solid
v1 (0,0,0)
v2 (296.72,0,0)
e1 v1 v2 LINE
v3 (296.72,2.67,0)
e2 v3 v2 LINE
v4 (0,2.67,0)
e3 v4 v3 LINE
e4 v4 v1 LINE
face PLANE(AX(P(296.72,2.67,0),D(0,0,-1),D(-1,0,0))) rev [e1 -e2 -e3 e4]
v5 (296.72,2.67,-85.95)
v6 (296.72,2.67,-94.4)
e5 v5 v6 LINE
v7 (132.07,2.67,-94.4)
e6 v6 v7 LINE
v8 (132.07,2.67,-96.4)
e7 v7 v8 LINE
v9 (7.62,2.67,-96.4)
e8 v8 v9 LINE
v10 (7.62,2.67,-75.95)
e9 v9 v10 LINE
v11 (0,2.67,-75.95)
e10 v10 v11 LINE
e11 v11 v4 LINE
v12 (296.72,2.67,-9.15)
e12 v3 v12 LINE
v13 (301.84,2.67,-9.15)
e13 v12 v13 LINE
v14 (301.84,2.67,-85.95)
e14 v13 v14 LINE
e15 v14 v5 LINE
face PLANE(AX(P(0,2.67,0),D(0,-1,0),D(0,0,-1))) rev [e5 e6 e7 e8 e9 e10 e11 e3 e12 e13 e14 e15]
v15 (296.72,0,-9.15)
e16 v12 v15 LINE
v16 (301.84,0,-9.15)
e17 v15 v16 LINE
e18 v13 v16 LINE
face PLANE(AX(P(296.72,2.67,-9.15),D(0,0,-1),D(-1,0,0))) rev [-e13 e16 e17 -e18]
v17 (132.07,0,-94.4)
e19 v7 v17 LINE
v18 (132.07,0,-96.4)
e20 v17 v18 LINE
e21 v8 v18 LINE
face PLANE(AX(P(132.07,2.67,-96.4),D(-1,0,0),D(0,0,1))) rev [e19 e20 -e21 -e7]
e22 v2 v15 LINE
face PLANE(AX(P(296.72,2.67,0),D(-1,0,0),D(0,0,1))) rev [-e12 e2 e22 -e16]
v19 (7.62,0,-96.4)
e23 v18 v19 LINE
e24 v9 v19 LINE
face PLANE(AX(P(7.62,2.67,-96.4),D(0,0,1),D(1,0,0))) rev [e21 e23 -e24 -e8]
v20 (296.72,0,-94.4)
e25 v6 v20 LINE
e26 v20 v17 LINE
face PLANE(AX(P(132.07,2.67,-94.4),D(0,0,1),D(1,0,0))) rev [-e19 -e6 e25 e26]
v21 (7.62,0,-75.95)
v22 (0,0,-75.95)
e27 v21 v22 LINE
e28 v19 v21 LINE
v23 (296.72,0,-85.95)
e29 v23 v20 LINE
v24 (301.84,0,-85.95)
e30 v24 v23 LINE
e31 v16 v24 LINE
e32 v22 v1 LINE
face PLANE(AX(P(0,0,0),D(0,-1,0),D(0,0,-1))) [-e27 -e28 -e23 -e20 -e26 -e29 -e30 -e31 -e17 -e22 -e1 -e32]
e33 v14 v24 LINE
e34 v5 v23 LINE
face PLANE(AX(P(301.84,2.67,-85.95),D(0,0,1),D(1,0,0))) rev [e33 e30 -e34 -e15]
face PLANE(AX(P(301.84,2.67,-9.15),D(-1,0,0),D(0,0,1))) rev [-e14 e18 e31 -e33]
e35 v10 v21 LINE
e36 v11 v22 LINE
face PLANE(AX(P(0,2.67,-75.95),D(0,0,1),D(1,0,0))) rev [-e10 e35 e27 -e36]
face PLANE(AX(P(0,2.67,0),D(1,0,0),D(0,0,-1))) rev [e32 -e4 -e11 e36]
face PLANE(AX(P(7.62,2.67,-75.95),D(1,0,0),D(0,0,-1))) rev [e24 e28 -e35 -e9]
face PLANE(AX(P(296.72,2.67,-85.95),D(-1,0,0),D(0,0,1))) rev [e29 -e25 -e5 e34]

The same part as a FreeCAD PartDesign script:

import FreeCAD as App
import Part
import Sketcher
Q = App.Units.Quantity

doc = App.newDocument("Part")
body = doc.addObject("PartDesign::Body", "Body")

# Sketch on XZ plane
sketch1 = body.newObject("Sketcher::SketchObject", "Sketch")
sketch1.AttachmentSupport = (doc.getObject("XZ_Plane"), [""])
sketch1.MapMode = "FlatFace"
sketch1.addGeometry(Part.LineSegment(App.Vector(0, -76, 0), App.Vector(0, 0, 0)), False)
sketch1.addGeometry(Part.LineSegment(App.Vector(0, 0, 0), App.Vector(296.7, 0, 0)), False)
sketch1.addGeometry(Part.LineSegment(App.Vector(296.7, 0, 0), App.Vector(296.7, -9.2, 0)), False)
sketch1.addGeometry(Part.LineSegment(App.Vector(296.7, -9.2, 0), App.Vector(301.8, -9.2, 0)), False)
sketch1.addGeometry(Part.LineSegment(App.Vector(301.8, -9.2, 0), App.Vector(301.8, -86, 0)), False)
sketch1.addGeometry(Part.LineSegment(App.Vector(301.8, -86, 0), App.Vector(296.7, -86, 0)), False)
sketch1.addGeometry(Part.LineSegment(App.Vector(296.7, -86, 0), App.Vector(296.7, -94.4, 0)), False)
sketch1.addGeometry(Part.LineSegment(App.Vector(296.7, -94.4, 0), App.Vector(132.1, -94.4, 0)), False)
sketch1.addGeometry(Part.LineSegment(App.Vector(132.1, -94.4, 0), App.Vector(132.1, -96.4, 0)), False)
sketch1.addGeometry(Part.LineSegment(App.Vector(132.1, -96.4, 0), App.Vector(7.6, -96.4, 0)), False)
sketch1.addGeometry(Part.LineSegment(App.Vector(7.6, -96.4, 0), App.Vector(7.6, -76, 0)), False)
sketch1.addGeometry(Part.LineSegment(App.Vector(7.6, -76, 0), App.Vector(0, -76, 0)), False)
sketch1.addConstraint(Sketcher.Constraint("Coincident", 0, 2, 1, 1))
sketch1.addConstraint(Sketcher.Constraint("Coincident", 1, 2, 2, 1))
sketch1.addConstraint(Sketcher.Constraint("Coincident", 2, 2, 3, 1))
sketch1.addConstraint(Sketcher.Constraint("Coincident", 3, 2, 4, 1))
sketch1.addConstraint(Sketcher.Constraint("Coincident", 4, 2, 5, 1))
sketch1.addConstraint(Sketcher.Constraint("Coincident", 5, 2, 6, 1))
sketch1.addConstraint(Sketcher.Constraint("Coincident", 6, 2, 7, 1))
sketch1.addConstraint(Sketcher.Constraint("Coincident", 7, 2, 8, 1))
sketch1.addConstraint(Sketcher.Constraint("Coincident", 8, 2, 9, 1))
sketch1.addConstraint(Sketcher.Constraint("Coincident", 9, 2, 10, 1))
sketch1.addConstraint(Sketcher.Constraint("Coincident", 10, 2, 11, 1))
sketch1.addConstraint(Sketcher.Constraint("Coincident", 11, 2, 0, 1))
sketch1.addConstraint(Sketcher.Constraint("Vertical", 0))
sketch1.addConstraint(Sketcher.Constraint("Horizontal", 1))
sketch1.addConstraint(Sketcher.Constraint("Vertical", 2))
sketch1.addConstraint(Sketcher.Constraint("Horizontal", 3))
sketch1.addConstraint(Sketcher.Constraint("Vertical", 4))
sketch1.addConstraint(Sketcher.Constraint("Horizontal", 5))
sketch1.addConstraint(Sketcher.Constraint("Vertical", 6))
sketch1.addConstraint(Sketcher.Constraint("Horizontal", 7))
sketch1.addConstraint(Sketcher.Constraint("Vertical", 8))
sketch1.addConstraint(Sketcher.Constraint("Horizontal", 9))
sketch1.addConstraint(Sketcher.Constraint("Vertical", 10))
sketch1.addConstraint(Sketcher.Constraint("Horizontal", 11))
sketch1.addConstraint(Sketcher.Constraint("Coincident", 0, 2, -1, 1))
sketch1.addConstraint(Sketcher.Constraint("Vertical", 2, 2, 5, 2))
sketch1.addConstraint(Sketcher.Constraint("DistanceY", 8, 2, 8, 1, Q("2 mm")))
sketch1.addConstraint(Sketcher.Constraint("DistanceY", 4, 2, 4, 1, Q("76.8 mm")))
sketch1.addConstraint(Sketcher.Constraint("DistanceY", 5, 2, 10, 2, Q("10 mm")))
sketch1.addConstraint(Sketcher.Constraint("DistanceX", 1, 1, 1, 2, Q("296.72 mm")))
sketch1.addConstraint(Sketcher.Constraint("DistanceX", 3, 1, 3, 2, Q("5.12 mm")))
sketch1.addConstraint(Sketcher.Constraint("DistanceX", 7, 2, 7, 1, Q("164.65 mm")))
sketch1.addConstraint(Sketcher.Constraint("DistanceX", 9, 2, 9, 1, Q("124.45 mm")))
sketch1.addConstraint(Sketcher.Constraint("DistanceY", 0, 1, 0, 2, Q("75.95 mm")))
sketch1.addConstraint(Sketcher.Constraint("DistanceY", 6, 2, 6, 1, Q("8.45 mm")))
pad1 = body.newObject("PartDesign::Pad", "Pad")
pad1.Profile = sketch1
pad1.Length = 2.67
pad1.Reversed = True

doc.recompute()
